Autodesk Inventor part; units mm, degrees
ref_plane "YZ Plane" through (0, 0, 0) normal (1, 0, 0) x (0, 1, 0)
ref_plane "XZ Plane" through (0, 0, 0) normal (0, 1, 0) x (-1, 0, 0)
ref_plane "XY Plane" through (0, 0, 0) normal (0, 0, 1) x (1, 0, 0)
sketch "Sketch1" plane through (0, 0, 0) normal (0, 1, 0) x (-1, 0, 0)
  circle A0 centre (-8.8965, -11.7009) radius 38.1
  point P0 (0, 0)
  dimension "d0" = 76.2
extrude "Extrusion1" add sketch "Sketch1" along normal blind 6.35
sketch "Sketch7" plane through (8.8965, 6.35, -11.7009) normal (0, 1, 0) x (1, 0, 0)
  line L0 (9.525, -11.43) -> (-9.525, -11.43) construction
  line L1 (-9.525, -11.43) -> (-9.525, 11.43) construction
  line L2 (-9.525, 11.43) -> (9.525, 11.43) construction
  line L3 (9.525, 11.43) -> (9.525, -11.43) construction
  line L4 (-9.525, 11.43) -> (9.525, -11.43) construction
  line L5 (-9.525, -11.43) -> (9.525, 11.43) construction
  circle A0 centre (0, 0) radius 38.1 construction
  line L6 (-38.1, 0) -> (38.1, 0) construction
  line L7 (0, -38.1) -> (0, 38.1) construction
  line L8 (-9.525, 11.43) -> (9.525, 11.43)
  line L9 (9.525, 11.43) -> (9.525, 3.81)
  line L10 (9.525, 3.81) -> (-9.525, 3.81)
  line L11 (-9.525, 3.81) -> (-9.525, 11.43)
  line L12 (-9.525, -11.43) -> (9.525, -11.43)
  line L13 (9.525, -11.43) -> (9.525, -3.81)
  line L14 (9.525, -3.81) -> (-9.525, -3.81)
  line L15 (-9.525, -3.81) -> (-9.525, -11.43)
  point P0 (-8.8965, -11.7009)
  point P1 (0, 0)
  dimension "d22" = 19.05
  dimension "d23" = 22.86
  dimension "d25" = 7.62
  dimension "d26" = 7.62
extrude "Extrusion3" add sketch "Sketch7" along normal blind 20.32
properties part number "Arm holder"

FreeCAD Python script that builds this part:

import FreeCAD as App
import Part
import Sketcher

V = App.Vector
Q = App.Units.Quantity

doc = App.newDocument("Part")
body = doc.addObject("PartDesign::Body", "Body")

# Sketch on XZ plane
sketch1 = body.newObject("Sketcher::SketchObject", "Sketch")
sketch1.AttachmentSupport = (doc.getObject("XZ_Plane"), [""])
sketch1.MapMode = "FlatFace"
sketch1.addGeometry(Part.Circle(V(9, -12, 0), V(0, 0, 1), 38), False)
sketch1.addConstraint(Sketcher.Constraint("Diameter", 0, Q("3 in")))
sketch1.addConstraint(Sketcher.Constraint("DistanceX", -1, 1, 0, 3, 8.8965))
sketch1.addConstraint(Sketcher.Constraint("DistanceY", 0, 3, -1, 1, 11.701))
pad1 = body.newObject("PartDesign::Pad", "Pad")
pad1.Profile = sketch1
pad1.Length = Q("0.25 in")
pad1.Reversed = True

# Sketch on XZ plane
sketch2 = body.newObject("Sketcher::SketchObject", "Sketch001")
sketch2.AttachmentSupport = (doc.getObject("XZ_Plane"), [""])
sketch2.MapMode = "FlatFace"
sketch2.AttachmentOffset = App.Placement(V(0, 0, -0.25 * 25.4), App.Rotation())
sketch2.addGeometry(Part.LineSegment(V(18, -23, 0), V(-1, -23, 0)), False)
sketch2.addGeometry(Part.LineSegment(V(-1, -23, 0), V(-1, -16, 0)), False)
sketch2.addGeometry(Part.LineSegment(V(-1, -16, 0), V(18, -16, 0)), False)
sketch2.addGeometry(Part.LineSegment(V(18, -16, 0), V(18, -23, 0)), False)
sketch2.addGeometry(Part.LineSegment(V(-1, -8, 0), V(-1, 0, 0)), False)
sketch2.addGeometry(Part.LineSegment(V(-1, 0, 0), V(18, 0, 0)), False)
sketch2.addGeometry(Part.LineSegment(V(18, 0, 0), V(18, -8, 0)), False)
sketch2.addGeometry(Part.LineSegment(V(18, -8, 0), V(-1, -8, 0)), False)
sketch2.addConstraint(Sketcher.Constraint("Coincident", 0, 2, 1, 1))
sketch2.addConstraint(Sketcher.Constraint("Coincident", 1, 2, 2, 1))
sketch2.addConstraint(Sketcher.Constraint("Coincident", 2, 2, 3, 1))
sketch2.addConstraint(Sketcher.Constraint("Coincident", 3, 2, 0, 1))
sketch2.addConstraint(Sketcher.Constraint("Coincident", 4, 2, 5, 1))
sketch2.addConstraint(Sketcher.Constraint("Coincident", 5, 2, 6, 1))
sketch2.addConstraint(Sketcher.Constraint("Coincident", 6, 2, 7, 1))
sketch2.addConstraint(Sketcher.Constraint("Coincident", 7, 2, 4, 1))
sketch2.addConstraint(Sketcher.Constraint("Horizontal", 0))
sketch2.addConstraint(Sketcher.Constraint("Vertical", 1))
sketch2.addConstraint(Sketcher.Constraint("Horizontal", 2))
sketch2.addConstraint(Sketcher.Constraint("Vertical", 3))
sketch2.addConstraint(Sketcher.Constraint("Vertical", 4))
sketch2.addConstraint(Sketcher.Constraint("Horizontal", 5))
sketch2.addConstraint(Sketcher.Constraint("Vertical", 6))
sketch2.addConstraint(Sketcher.Constraint("Horizontal", 7))
sketch2.addConstraint(Sketcher.Constraint("Vertical", 1, 2, 4, 2))
sketch2.addConstraint(Sketcher.Constraint("Vertical", 3, 2, 5, 2))
sketch2.addConstraint(Sketcher.Constraint("Equal", 3, 4))
sketch2.addConstraint(Sketcher.Constraint("DistanceY", 1, 1, 1, 2, Q("0.3 in")))
sketch2.addConstraint(Sketcher.Constraint("DistanceX", 0, 2, 0, 1, Q("0.75 in")))
sketch2.addConstraint(Sketcher.Constraint("DistanceY", 0, 2, 4, 2, Q("0.9 in")))
sketch2.addConstraint(Sketcher.Constraint("DistanceX", 0, 2, -1, 1, 0.6285))
sketch2.addConstraint(Sketcher.Constraint("DistanceY", 0, 2, -1, 1, 23.131))
pad2 = body.newObject("PartDesign::Pad", "Pad001")
pad2.Profile = sketch2
pad2.Length = Q("0.8 in")
pad2.Reversed = True

doc.recompute()
